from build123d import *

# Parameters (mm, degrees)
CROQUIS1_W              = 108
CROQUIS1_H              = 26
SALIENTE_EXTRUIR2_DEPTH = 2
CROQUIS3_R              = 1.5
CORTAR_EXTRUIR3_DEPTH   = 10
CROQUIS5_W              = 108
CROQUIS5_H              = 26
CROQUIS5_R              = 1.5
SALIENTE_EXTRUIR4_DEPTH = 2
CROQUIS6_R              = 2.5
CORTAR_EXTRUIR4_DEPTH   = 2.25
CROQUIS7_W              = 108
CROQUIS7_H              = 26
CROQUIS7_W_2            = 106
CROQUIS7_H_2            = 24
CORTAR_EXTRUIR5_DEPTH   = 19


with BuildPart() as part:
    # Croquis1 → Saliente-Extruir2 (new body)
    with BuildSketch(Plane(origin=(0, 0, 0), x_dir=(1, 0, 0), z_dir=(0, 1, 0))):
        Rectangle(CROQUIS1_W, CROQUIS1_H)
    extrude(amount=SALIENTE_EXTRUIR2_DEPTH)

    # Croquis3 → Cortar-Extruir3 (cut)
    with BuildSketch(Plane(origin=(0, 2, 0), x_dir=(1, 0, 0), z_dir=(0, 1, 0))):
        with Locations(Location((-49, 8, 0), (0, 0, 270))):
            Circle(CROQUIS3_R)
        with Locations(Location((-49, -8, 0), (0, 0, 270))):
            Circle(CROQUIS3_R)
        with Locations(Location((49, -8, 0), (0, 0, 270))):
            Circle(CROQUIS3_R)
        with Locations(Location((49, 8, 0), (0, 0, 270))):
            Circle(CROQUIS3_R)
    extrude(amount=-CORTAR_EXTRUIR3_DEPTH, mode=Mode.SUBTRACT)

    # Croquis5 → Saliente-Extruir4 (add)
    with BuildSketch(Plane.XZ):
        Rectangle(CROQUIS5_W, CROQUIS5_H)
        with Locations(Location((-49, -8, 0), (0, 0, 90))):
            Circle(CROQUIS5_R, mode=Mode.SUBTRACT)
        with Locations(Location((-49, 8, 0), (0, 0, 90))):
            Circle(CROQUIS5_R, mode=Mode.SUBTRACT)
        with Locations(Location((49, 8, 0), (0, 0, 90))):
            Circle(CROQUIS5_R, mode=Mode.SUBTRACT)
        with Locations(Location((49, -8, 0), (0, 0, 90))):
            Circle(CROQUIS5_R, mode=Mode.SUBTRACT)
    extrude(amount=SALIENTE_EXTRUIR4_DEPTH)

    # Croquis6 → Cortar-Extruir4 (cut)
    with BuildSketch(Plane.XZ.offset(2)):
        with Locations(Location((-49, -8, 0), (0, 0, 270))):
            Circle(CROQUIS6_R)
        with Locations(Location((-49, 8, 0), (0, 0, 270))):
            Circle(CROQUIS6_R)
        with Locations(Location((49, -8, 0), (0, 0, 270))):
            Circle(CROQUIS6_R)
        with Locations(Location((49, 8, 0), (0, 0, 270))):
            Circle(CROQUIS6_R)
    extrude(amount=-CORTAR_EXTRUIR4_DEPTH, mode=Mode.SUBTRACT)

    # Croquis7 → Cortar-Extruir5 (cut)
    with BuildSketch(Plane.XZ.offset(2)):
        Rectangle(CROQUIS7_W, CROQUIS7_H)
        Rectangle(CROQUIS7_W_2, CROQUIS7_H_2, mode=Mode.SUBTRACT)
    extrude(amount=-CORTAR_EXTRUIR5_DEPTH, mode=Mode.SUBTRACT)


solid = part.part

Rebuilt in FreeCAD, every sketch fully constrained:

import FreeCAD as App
import Part
import Sketcher
from FreeCAD import Vector
Q = App.Units.Quantity

doc = App.newDocument("Part")
body = doc.addObject("PartDesign::Body", "Body")

# Sketch on XZ plane
sketch1 = body.newObject("Sketcher::SketchObject", "Sketch")
sketch1.AttachmentSupport = (doc.getObject("XZ_Plane"), [""])
sketch1.MapMode = "FlatFace"
sketch1.addGeometry([
    Part.LineSegment(Vector(-54, -13, 0), Vector(-54, 13, 0)),
    Part.LineSegment(Vector(-54, 13, 0), Vector(54, 13, 0)),
    Part.LineSegment(Vector(54, 13, 0), Vector(54, -13, 0)),
    Part.LineSegment(Vector(54, -13, 0), Vector(-54, -13, 0)),
], False)
sketch1.addConstraint([
    Sketcher.Constraint("Coincident", 0, 2, 1, 1),
    Sketcher.Constraint("Coincident", 1, 2, 2, 1),
    Sketcher.Constraint("Coincident", 2, 2, 3, 1),
    Sketcher.Constraint("Coincident", 3, 2, 0, 1),
    Sketcher.Constraint("Vertical", 0),
    Sketcher.Constraint("Horizontal", 1),
    Sketcher.Constraint("Vertical", 2),
    Sketcher.Constraint("Horizontal", 3),
    Sketcher.Constraint("Symmetric", 0, 2, 2, 2, -1, 1),
    Sketcher.Constraint("DistanceX", 1, 1, 1, 2, Q("108 mm")),
    Sketcher.Constraint("DistanceY", 0, 1, 0, 2, Q("26 mm")),
])
pad1 = body.newObject("PartDesign::Pad", "Pad")
pad1.Profile = sketch1
pad1.Length = 2
pad1.Reversed = True

# Sketch on XZ plane
sketch2 = body.newObject("Sketcher::SketchObject", "Sketch001")
sketch2.AttachmentSupport = (doc.getObject("XZ_Plane"), [""])
sketch2.MapMode = "FlatFace"
sketch2.AttachmentOffset = App.Placement(Vector(0, 0, -2), App.Rotation())
sketch2.addGeometry([
    Part.Circle(Vector(-49, -8, 0), Vector(0, 0, 1), 1.5),
    Part.Circle(Vector(-49, 8, 0), Vector(0, 0, 1), 1.5),
    Part.Circle(Vector(49, 8, 0), Vector(0, 0, 1), 1.5),
    Part.Circle(Vector(49, -8, 0), Vector(0, 0, 1), 1.5),
], False)
sketch2.addConstraint([
    Sketcher.Constraint("Equal", 0, 1),
    Sketcher.Constraint("Equal", 1, 2),
    Sketcher.Constraint("Equal", 2, 3),
    Sketcher.Constraint("Symmetric", 0, 3, 2, 3, -1, 1),
    Sketcher.Constraint("Symmetric", 1, 3, 3, 3, -1, 1),
    Sketcher.Constraint("Symmetric", 1, 3, 2, 3, -2),
    Sketcher.Constraint("Diameter", 0, Q("3 mm")),
    Sketcher.Constraint("DistanceX", 0, 3, -1, 1, Q("49 mm")),
    Sketcher.Constraint("DistanceY", 0, 3, -1, 1, Q("8 mm")),
])
pocket1 = body.newObject("PartDesign::Pocket", "Pocket")
pocket1.Profile = sketch2
pocket1.Length = 10
pocket1.Reversed = True

# Sketch on XZ plane
sketch3 = body.newObject("Sketcher::SketchObject", "Sketch002")
sketch3.AttachmentSupport = (doc.getObject("XZ_Plane"), [""])
sketch3.MapMode = "FlatFace"
sketch3.addGeometry([
    Part.LineSegment(Vector(-54, 13, 0), Vector(-54, -13, 0)),  # 0
    Part.LineSegment(Vector(-54, -13, 0), Vector(54, -13, 0)),  # 1
    Part.LineSegment(Vector(54, -13, 0), Vector(54, 13, 0)),  # 2
    Part.LineSegment(Vector(54, 13, 0), Vector(-54, 13, 0)),  # 3
    Part.Circle(Vector(-49, -8, 0), Vector(0, 0, 1), 1.5),  # 4
    Part.Circle(Vector(49, -8, 0), Vector(0, 0, 1), 1.5),  # 5
    Part.Circle(Vector(-49, 8, 0), Vector(0, 0, 1), 1.5),  # 6
    Part.Circle(Vector(49, 8, 0), Vector(0, 0, 1), 1.5),  # 7
], False)
sketch3.addConstraint([
    Sketcher.Constraint("Coincident", 0, 2, 1, 1),
    Sketcher.Constraint("Coincident", 1, 2, 2, 1),
    Sketcher.Constraint("Coincident", 2, 2, 3, 1),
    Sketcher.Constraint("Coincident", 3, 2, 0, 1),
    Sketcher.Constraint("Vertical", 0),
    Sketcher.Constraint("Horizontal", 1),
    Sketcher.Constraint("Vertical", 2),
    Sketcher.Constraint("Horizontal", 3),
    Sketcher.Constraint("Equal", 4, 5),
    Sketcher.Constraint("Equal", 5, 6),
    Sketcher.Constraint("Equal", 6, 7),
    Sketcher.Constraint("Symmetric", 5, 3, 6, 3, -1, 1),
    Sketcher.Constraint("Symmetric", 4, 3, 7, 3, -1, 1),
    Sketcher.Constraint("Symmetric", 0, 2, 2, 2, -1, 1),
    Sketcher.Constraint("Symmetric", 4, 3, 5, 3, -2),
    Sketcher.Constraint("Diameter", 4, Q("3 mm")),
    Sketcher.Constraint("DistanceX", 1, 1, 1, 2, Q("108 mm")),
    Sketcher.Constraint("DistanceY", 0, 2, 0, 1, Q("26 mm")),
    Sketcher.Constraint("DistanceX", 4, 3, -1, 1, Q("49 mm")),
    Sketcher.Constraint("DistanceY", 4, 3, -1, 1, Q("8 mm")),
])
pad2 = body.newObject("PartDesign::Pad", "Pad001")
pad2.Profile = sketch3
pad2.Length = 2

# Sketch on XZ plane
sketch4 = body.newObject("Sketcher::SketchObject", "Sketch003")
sketch4.AttachmentSupport = (doc.getObject("XZ_Plane"), [""])
sketch4.MapMode = "FlatFace"
sketch4.AttachmentOffset = App.Placement(Vector(0, 0, 2), App.Rotation())
sketch4.addGeometry([
    Part.Circle(Vector(-49, -8, 0), Vector(0, 0, 1), 2.5),
    Part.Circle(Vector(-49, 8, 0), Vector(0, 0, 1), 2.5),
    Part.Circle(Vector(49, -8, 0), Vector(0, 0, 1), 2.5),
    Part.Circle(Vector(49, 8, 0), Vector(0, 0, 1), 2.5),
], False)
sketch4.addConstraint([
    Sketcher.Constraint("Equal", 0, 1),
    Sketcher.Constraint("Equal", 1, 2),
    Sketcher.Constraint("Equal", 2, 3),
    Sketcher.Constraint("Symmetric", 1, 3, 2, 3, -1, 1),
    Sketcher.Constraint("Symmetric", 0, 3, 3, 3, -1, 1),
    Sketcher.Constraint("Symmetric", 0, 3, 2, 3, -2),
    Sketcher.Constraint("Diameter", 0, Q("5 mm")),
    Sketcher.Constraint("DistanceX", 0, 3, -1, 1, Q("49 mm")),
    Sketcher.Constraint("DistanceY", 0, 3, -1, 1, Q("8 mm")),
])
pocket2 = body.newObject("PartDesign::Pocket", "Pocket001")
pocket2.Profile = sketch4
pocket2.Length = 2.25

# Sketch on XZ plane
sketch5 = body.newObject("Sketcher::SketchObject", "Sketch004")
sketch5.AttachmentSupport = (doc.getObject("XZ_Plane"), [""])
sketch5.MapMode = "FlatFace"
sketch5.AttachmentOffset = App.Placement(Vector(0, 0, 2), App.Rotation())
sketch5.addGeometry([
    Part.LineSegment(Vector(-54, 13, 0), Vector(-54, -13, 0)),  # 0
    Part.LineSegment(Vector(-54, -13, 0), Vector(54, -13, 0)),  # 1
    Part.LineSegment(Vector(54, -13, 0), Vector(54, 13, 0)),  # 2
    Part.LineSegment(Vector(54, 13, 0), Vector(-54, 13, 0)),  # 3
    Part.LineSegment(Vector(53, -12, 0), Vector(-53, -12, 0)),  # 4
    Part.LineSegment(Vector(-53, -12, 0), Vector(-53, 12, 0)),  # 5
    Part.LineSegment(Vector(-53, 12, 0), Vector(53, 12, 0)),  # 6
    Part.LineSegment(Vector(53, 12, 0), Vector(53, -12, 0)),  # 7
], False)
sketch5.addConstraint([
    Sketcher.Constraint("Coincident", 0, 2, 1, 1),
    Sketcher.Constraint("Coincident", 1, 2, 2, 1),
    Sketcher.Constraint("Coincident", 2, 2, 3, 1),
    Sketcher.Constraint("Coincident", 3, 2, 0, 1),
    Sketcher.Constraint("Coincident", 4, 2, 5, 1),
    Sketcher.Constraint("Coincident", 5, 2, 6, 1),
    Sketcher.Constraint("Coincident", 6, 2, 7, 1),
    Sketcher.Constraint("Coincident", 7, 2, 4, 1),
    Sketcher.Constraint("Vertical", 0),
    Sketcher.Constraint("Horizontal", 1),
    Sketcher.Constraint("Vertical", 2),
    Sketcher.Constraint("Horizontal", 3),
    Sketcher.Constraint("Horizontal", 4),
    Sketcher.Constraint("Vertical", 5),
    Sketcher.Constraint("Horizontal", 6),
    Sketcher.Constraint("Vertical", 7),
    Sketcher.Constraint("Symmetric", 0, 2, 2, 2, -1, 1),
    Sketcher.Constraint("Symmetric", 4, 2, 6, 2, -1, 1),
    Sketcher.Constraint("DistanceX", 1, 1, 1, 2, Q("108 mm")),
    Sketcher.Constraint("DistanceX", 4, 2, 4, 1, Q("106 mm")),
    Sketcher.Constraint("DistanceY", 0, 2, 0, 1, Q("26 mm")),
    Sketcher.Constraint("DistanceY", 5, 1, 5, 2, Q("24 mm")),
])
pocket3 = body.newObject("PartDesign::Pocket", "Pocket002")
pocket3.Profile = sketch5
pocket3.Length = 19

doc.recompute()
